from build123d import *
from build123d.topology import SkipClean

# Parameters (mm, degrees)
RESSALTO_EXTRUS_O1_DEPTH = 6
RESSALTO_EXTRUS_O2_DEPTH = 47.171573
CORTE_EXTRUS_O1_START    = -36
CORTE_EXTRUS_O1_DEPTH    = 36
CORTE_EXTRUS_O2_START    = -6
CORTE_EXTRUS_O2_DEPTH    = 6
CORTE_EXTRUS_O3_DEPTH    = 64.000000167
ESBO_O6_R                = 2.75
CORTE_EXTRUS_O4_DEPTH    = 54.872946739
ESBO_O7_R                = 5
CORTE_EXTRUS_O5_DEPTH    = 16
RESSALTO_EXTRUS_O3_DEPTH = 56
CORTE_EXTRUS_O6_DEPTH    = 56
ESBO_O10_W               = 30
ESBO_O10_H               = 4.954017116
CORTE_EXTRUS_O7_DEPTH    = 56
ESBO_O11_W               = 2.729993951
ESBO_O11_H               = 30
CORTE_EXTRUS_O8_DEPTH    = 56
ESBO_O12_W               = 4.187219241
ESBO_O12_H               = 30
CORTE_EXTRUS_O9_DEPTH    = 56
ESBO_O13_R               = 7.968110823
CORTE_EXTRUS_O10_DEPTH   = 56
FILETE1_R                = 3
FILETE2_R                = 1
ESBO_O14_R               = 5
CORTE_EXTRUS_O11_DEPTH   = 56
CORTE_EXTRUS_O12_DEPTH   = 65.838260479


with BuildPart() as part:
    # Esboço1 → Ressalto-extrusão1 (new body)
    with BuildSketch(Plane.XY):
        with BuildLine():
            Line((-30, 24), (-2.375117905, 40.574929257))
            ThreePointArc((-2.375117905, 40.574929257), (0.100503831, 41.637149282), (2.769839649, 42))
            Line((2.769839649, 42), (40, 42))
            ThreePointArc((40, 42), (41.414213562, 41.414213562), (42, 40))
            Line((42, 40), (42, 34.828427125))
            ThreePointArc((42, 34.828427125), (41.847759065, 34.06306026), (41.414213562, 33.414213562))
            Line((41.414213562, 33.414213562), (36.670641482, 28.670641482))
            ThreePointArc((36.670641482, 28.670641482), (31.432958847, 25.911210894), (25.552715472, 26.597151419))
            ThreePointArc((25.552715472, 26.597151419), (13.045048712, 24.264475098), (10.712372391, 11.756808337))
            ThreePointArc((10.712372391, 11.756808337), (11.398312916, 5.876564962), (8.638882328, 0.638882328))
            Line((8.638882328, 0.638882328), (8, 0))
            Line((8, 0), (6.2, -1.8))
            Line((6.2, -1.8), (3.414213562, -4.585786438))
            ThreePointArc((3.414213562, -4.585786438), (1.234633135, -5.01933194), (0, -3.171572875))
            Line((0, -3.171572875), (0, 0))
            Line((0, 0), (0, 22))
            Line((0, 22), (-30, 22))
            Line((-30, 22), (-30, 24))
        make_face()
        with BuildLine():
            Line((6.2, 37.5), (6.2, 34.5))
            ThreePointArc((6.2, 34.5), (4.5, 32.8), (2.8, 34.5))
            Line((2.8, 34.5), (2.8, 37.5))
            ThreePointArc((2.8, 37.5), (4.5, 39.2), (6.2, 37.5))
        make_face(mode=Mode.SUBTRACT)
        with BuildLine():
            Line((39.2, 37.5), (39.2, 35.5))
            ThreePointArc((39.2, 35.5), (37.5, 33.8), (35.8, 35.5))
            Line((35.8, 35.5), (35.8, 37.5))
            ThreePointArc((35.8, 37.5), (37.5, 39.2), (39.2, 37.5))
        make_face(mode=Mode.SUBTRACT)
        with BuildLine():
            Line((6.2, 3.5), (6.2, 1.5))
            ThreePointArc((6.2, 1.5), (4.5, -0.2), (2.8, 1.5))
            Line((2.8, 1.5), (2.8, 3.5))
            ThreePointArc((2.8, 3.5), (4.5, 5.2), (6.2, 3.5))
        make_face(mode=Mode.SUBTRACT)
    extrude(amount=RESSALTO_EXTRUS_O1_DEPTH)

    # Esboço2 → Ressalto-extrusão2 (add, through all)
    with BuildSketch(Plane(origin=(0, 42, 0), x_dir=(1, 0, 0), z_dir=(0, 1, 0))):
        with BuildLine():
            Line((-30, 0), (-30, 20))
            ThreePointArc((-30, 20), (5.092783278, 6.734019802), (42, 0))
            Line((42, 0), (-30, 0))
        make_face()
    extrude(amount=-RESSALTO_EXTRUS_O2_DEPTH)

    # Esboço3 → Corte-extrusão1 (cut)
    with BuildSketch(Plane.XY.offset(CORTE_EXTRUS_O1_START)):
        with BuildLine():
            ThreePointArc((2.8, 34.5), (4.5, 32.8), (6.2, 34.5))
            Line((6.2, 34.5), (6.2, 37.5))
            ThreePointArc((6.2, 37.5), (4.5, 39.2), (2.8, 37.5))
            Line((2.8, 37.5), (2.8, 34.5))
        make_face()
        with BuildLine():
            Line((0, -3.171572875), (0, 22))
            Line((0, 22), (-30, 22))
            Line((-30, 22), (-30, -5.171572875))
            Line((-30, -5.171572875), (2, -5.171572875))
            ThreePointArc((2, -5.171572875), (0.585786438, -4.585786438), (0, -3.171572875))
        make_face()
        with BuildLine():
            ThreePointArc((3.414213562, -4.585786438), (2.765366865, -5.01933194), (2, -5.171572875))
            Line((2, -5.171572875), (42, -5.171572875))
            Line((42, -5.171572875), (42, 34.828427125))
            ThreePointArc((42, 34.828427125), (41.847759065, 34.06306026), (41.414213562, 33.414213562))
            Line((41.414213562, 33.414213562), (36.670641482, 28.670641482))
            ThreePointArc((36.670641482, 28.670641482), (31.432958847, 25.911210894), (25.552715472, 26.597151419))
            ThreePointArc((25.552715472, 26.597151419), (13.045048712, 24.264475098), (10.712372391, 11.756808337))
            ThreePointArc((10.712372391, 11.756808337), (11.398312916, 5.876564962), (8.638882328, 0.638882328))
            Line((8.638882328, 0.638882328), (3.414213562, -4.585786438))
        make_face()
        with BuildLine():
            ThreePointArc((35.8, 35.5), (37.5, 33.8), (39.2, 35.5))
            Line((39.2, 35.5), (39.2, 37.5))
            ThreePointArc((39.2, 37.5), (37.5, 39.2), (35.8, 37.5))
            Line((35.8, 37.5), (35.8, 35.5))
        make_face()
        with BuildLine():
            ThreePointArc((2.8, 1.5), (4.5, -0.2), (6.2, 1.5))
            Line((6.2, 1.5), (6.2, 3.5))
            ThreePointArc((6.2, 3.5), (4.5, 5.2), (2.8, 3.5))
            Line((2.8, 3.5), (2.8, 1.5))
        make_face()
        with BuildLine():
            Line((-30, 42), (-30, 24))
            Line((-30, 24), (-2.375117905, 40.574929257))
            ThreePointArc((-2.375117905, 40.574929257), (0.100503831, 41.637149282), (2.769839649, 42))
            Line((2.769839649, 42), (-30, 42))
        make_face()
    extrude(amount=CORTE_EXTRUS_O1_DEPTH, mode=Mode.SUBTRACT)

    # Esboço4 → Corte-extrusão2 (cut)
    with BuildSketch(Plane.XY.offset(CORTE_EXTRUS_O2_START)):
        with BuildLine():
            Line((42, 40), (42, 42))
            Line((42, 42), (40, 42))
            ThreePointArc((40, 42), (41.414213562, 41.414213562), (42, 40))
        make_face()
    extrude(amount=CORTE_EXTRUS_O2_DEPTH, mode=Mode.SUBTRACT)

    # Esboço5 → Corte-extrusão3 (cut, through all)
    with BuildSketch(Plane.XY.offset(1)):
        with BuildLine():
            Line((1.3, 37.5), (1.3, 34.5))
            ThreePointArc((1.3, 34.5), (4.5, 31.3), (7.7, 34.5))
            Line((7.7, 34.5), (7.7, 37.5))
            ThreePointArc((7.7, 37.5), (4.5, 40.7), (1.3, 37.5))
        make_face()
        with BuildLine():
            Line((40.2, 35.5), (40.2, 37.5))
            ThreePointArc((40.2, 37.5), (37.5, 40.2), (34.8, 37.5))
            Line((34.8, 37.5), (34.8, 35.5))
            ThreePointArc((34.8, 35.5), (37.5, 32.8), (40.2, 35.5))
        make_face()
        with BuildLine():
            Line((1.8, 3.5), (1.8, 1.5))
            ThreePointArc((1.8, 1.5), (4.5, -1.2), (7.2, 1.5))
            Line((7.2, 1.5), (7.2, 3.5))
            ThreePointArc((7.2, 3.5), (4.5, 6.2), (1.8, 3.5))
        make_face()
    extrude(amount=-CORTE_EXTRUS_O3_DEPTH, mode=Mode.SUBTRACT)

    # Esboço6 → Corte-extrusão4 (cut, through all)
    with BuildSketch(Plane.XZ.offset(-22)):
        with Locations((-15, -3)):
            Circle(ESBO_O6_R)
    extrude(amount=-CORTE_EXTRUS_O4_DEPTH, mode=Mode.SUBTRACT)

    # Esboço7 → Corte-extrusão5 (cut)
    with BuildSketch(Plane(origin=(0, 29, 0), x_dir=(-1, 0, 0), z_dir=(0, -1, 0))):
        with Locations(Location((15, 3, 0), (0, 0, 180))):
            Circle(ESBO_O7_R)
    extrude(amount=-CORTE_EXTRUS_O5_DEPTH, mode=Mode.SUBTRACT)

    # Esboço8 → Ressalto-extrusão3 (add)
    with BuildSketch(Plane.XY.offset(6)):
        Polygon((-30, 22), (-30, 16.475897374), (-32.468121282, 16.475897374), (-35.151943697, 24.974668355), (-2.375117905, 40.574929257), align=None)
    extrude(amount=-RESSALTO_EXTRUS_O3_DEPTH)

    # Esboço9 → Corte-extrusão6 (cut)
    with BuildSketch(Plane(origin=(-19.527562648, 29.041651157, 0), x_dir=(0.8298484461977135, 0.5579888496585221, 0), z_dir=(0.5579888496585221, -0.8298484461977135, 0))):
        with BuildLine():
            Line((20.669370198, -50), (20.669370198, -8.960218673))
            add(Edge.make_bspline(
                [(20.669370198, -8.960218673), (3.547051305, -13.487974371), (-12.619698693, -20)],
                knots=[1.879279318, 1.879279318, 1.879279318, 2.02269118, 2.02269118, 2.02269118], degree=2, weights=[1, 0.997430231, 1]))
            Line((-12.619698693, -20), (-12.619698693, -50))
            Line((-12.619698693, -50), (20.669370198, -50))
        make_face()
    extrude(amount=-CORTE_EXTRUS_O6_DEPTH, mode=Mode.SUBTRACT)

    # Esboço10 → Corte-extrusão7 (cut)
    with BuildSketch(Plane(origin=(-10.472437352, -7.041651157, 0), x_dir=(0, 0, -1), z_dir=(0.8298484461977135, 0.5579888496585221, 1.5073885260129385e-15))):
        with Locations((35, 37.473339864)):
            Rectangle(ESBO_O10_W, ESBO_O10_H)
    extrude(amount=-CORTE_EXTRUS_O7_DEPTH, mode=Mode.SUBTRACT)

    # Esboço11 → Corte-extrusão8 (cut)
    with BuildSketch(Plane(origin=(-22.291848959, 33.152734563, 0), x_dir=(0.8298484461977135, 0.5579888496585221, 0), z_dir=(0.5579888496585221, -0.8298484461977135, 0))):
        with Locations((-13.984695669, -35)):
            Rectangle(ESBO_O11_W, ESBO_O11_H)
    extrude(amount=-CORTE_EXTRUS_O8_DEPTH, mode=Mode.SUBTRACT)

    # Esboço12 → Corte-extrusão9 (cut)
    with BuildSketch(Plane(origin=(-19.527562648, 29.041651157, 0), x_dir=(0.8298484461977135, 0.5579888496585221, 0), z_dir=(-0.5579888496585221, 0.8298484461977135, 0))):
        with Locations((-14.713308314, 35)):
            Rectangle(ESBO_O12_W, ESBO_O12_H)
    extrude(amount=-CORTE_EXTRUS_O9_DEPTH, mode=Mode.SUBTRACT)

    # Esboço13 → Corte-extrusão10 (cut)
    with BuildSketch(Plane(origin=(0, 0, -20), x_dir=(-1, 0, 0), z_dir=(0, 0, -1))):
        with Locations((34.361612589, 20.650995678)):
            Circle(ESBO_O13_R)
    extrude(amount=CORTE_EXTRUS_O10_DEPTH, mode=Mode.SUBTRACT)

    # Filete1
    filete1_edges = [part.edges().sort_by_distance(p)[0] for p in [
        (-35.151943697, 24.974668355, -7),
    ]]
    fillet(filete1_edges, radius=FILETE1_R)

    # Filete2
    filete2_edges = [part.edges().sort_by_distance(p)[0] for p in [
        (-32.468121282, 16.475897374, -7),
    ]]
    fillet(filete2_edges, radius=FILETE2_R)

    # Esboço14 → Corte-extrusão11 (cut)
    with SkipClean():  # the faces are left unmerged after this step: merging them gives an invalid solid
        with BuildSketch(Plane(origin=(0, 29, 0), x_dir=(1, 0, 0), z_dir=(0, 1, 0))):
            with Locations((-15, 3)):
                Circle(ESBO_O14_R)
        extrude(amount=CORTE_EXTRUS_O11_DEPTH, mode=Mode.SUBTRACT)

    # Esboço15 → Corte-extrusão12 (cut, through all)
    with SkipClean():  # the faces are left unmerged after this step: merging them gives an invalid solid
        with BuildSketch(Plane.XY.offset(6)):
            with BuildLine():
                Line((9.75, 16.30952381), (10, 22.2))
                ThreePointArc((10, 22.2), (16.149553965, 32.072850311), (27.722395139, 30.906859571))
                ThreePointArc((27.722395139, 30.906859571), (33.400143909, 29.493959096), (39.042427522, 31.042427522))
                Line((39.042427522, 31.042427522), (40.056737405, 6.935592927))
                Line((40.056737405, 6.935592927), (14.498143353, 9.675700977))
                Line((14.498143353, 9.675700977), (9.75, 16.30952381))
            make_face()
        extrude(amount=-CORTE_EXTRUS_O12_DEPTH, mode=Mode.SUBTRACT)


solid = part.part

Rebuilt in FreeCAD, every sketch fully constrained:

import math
import FreeCAD as App
import Part
import Sketcher
Q = App.Units.Quantity


def edges_at(feature, points):
    """Names of the edges that pass closest to the given points."""
    edges = feature.Shape.Edges
    near = lambda p: min(range(len(edges)), key=lambda i: edges[i].distToShape(Part.Vertex(*p))[0])
    return sorted({f"Edge{near(p) + 1}" for p in points})

doc = App.newDocument("Part")
body = doc.addObject("PartDesign::Body", "Body")

# Sketch on XY plane
sketch1 = body.newObject("Sketcher::SketchObject", "Sketch")
sketch1.AttachmentSupport = (doc.getObject("XY_Plane"), [""])
sketch1.MapMode = "FlatFace"
sketch1.addGeometry([
    Part.LineSegment(App.Vector(-2.4, 40.6, 0), App.Vector(-30, 24, 0)),  # 0
    Part.LineSegment(App.Vector(-30, 24, 0), App.Vector(-30, 22, 0)),  # 1
    Part.LineSegment(App.Vector(-30, 22, 0), App.Vector(0, 22, 0)),  # 2
    Part.LineSegment(App.Vector(0, 22, 0), App.Vector(0, -3.2, 0)),  # 3
    Part.ArcOfCircle(Part.Circle(App.Vector(2, -3.2, 0), App.Vector(0, 0, 1), 2), math.radians(180), math.radians(315)),  # 4
    Part.LineSegment(App.Vector(3.4, -4.6, 0), App.Vector(8.6, 0.6, 0)),  # 5
    Part.ArcOfCircle(Part.Circle(App.Vector(1.6, 7.7, 0), App.Vector(0, 0, 1), 10), math.radians(-45), math.radians(24)),  # 6
    Part.ArcOfCircle(Part.Circle(App.Vector(21, 16.3, 0), App.Vector(0, 0, 1), 11.2), math.radians(66), math.radians(204)),  # 7
    Part.ArcOfCircle(Part.Circle(App.Vector(29.6, 35.7, 0), App.Vector(0, 0, 1), 10), math.radians(-114), math.radians(-45)),  # 8
    Part.LineSegment(App.Vector(36.7, 28.7, 0), App.Vector(41.4, 33.4, 0)),  # 9
    Part.ArcOfCircle(Part.Circle(App.Vector(40, 34.8, 0), App.Vector(0, 0, 1), 2), math.radians(-45), math.radians(0)),  # 10
    Part.LineSegment(App.Vector(42, 34.8, 0), App.Vector(42, 40, 0)),  # 11
    Part.ArcOfCircle(Part.Circle(App.Vector(40, 40, 0), App.Vector(0, 0, 1), 2), math.radians(0), math.radians(90)),  # 12
    Part.LineSegment(App.Vector(40, 42, 0), App.Vector(2.8, 42, 0)),  # 13
    Part.ArcOfCircle(Part.Circle(App.Vector(2.8, 32, 0), App.Vector(0, 0, 1), 10), math.radians(90), math.radians(121)),  # 14
    Part.LineSegment(App.Vector(6.2, 3.5, 0), App.Vector(6.2, 1.5, 0)),  # 15
    Part.ArcOfCircle(Part.Circle(App.Vector(4.5, 1.5, 0), App.Vector(0, 0, 1), 1.7), math.radians(180), math.radians(360)),  # 16
    Part.LineSegment(App.Vector(2.8, 1.5, 0), App.Vector(2.8, 3.5, 0)),  # 17
    Part.ArcOfCircle(Part.Circle(App.Vector(4.5, 3.5, 0), App.Vector(0, 0, 1), 1.7), math.radians(0), math.radians(180)),  # 18
    Part.LineSegment(App.Vector(39.2, 37.5, 0), App.Vector(39.2, 35.5, 0)),  # 19
    Part.ArcOfCircle(Part.Circle(App.Vector(37.5, 35.5, 0), App.Vector(0, 0, 1), 1.7), math.radians(180), math.radians(360)),  # 20
    Part.LineSegment(App.Vector(35.8, 35.5, 0), App.Vector(35.8, 37.5, 0)),  # 21
    Part.ArcOfCircle(Part.Circle(App.Vector(37.5, 37.5, 0), App.Vector(0, 0, 1), 1.7), math.radians(0), math.radians(180)),  # 22
    Part.LineSegment(App.Vector(6.2, 37.5, 0), App.Vector(6.2, 34.5, 0)),  # 23
    Part.ArcOfCircle(Part.Circle(App.Vector(4.5, 34.5, 0), App.Vector(0, 0, 1), 1.7), math.radians(180), math.radians(360)),  # 24
    Part.LineSegment(App.Vector(2.8, 34.5, 0), App.Vector(2.8, 37.5, 0)),  # 25
    Part.ArcOfCircle(Part.Circle(App.Vector(4.5, 37.5, 0), App.Vector(0, 0, 1), 1.7), math.radians(0), math.radians(180)),  # 26
], False)
sketch1.addConstraint([
    Sketcher.Constraint("Coincident", 0, 2, 1, 1),
    Sketcher.Constraint("Coincident", 1, 2, 2, 1),
    Sketcher.Constraint("Coincident", 2, 2, 3, 1),
    Sketcher.Constraint("Tangent", 3, 2, 4, 1),
    Sketcher.Constraint("Tangent", 4, 2, 5, 1),
    Sketcher.Constraint("Tangent", 5, 2, 6, 1),
    Sketcher.Constraint("Tangent", 6, 2, 7, 2),
    Sketcher.Constraint("Tangent", 7, 1, 8, 1),
    Sketcher.Constraint("Tangent", 8, 2, 9, 1),
    Sketcher.Constraint("Tangent", 9, 2, 10, 1),
    Sketcher.Constraint("Tangent", 10, 2, 11, 1),
    Sketcher.Constraint("Tangent", 11, 2, 12, 1),
    Sketcher.Constraint("Tangent", 12, 2, 13, 1),
    Sketcher.Constraint("Tangent", 13, 2, 14, 1),
    Sketcher.Constraint("Tangent", 14, 2, 0, 1),
    Sketcher.Constraint("Tangent", 15, 2, 16, 2),
    Sketcher.Constraint("Tangent", 16, 1, 17, 1),
    Sketcher.Constraint("Tangent", 17, 2, 18, 2),
    Sketcher.Constraint("Tangent", 18, 1, 15, 1),
    Sketcher.Constraint("Tangent", 19, 2, 20, 2),
    Sketcher.Constraint("Tangent", 20, 1, 21, 1),
    Sketcher.Constraint("Tangent", 21, 2, 22, 2),
    Sketcher.Constraint("Tangent", 22, 1, 19, 1),
    Sketcher.Constraint("Tangent", 23, 2, 24, 2),
    Sketcher.Constraint("Tangent", 24, 1, 25, 1),
    Sketcher.Constraint("Tangent", 25, 2, 26, 2),
    Sketcher.Constraint("Tangent", 26, 1, 23, 1),
    Sketcher.Constraint("Vertical", 1),
    Sketcher.Constraint("Horizontal", 2),
    Sketcher.Constraint("Vertical", 3),
    Sketcher.Constraint("Vertical", 11),
    Sketcher.Constraint("Horizontal", 13),
    Sketcher.Constraint("Vertical", 15),
    Sketcher.Constraint("Vertical", 17),
    Sketcher.Constraint("Vertical", 19),
    Sketcher.Constraint("Vertical", 21),
    Sketcher.Constraint("Vertical", 23),
    Sketcher.Constraint("Vertical", 25),
    Sketcher.Constraint("Equal", 6, 8),
    Sketcher.Constraint("Equal", 4, 10),
    Sketcher.Constraint("Equal", 10, 12),
    Sketcher.Constraint("Equal", 8, 14),
    Sketcher.Constraint("Equal", 18, 20),
    Sketcher.Constraint("Equal", 22, 24),
    Sketcher.Constraint("PointOnObject", 2, 2, -2),
    Sketcher.Constraint("Parallel", 5, 9),
    Sketcher.Constraint("Horizontal", 22, 3, 26, 3),
    Sketcher.Constraint("Vertical", 18, 3, 24, 3),
    Sketcher.Constraint("Equal", 1, 15),
    Sketcher.Constraint("Equal", 17, 19),
    Sketcher.Constraint("Radius", 4, Q("2 mm")),
    Sketcher.Constraint("Radius", 6, Q("10 mm")),
    Sketcher.Constraint("Radius", 16, Q("1.7 mm")),
    Sketcher.Constraint("DistanceX", 2, 1, 2, 2, Q("30 mm")),
    Sketcher.Constraint("DistanceY", 1, 2, 1, 1, Q("2 mm")),
    Sketcher.Constraint("DistanceY", 23, 2, 23, 1, Q("3 mm")),
    Sketcher.Constraint("Angle", 5, Q("45 deg")),
    Sketcher.Constraint("Radius", 7, Q("11.25 mm")),
    Sketcher.Constraint("DistanceX", -1, 1, 7, 3, Q("21 mm")),
    Sketcher.Constraint("DistanceX", -1, 1, 10, 3, Q("40 mm")),
    Sketcher.Constraint("DistanceY", -1, 1, 12, 3, Q("40 mm")),
    Sketcher.Constraint("DistanceY", -1, 1, 0, 2, Q("24 mm")),
    Sketcher.Constraint("DistanceY", 4, 3, 10, 3, Q("38 mm")),
    Sketcher.Constraint("DistanceY", 18, 3, 24, 3, Q("31 mm")),
    Sketcher.Constraint("DistanceX", -1, 1, 16, 3, Q("4.5 mm")),
    Sketcher.Constraint("DistanceY", -1, 1, 16, 3, Q("1.5 mm")),
    Sketcher.Constraint("DistanceX", -1, 1, 20, 3, Q("37.5 mm")),
    Sketcher.Constraint("DistanceX", 13, 2, 13, 1, Q("37.23016 mm")),
    Sketcher.Constraint("DistanceX", 6, 3, 4, 2, Q("1.846399 mm")),
    Sketcher.Constraint("DistanceY", 3, 2, 3, 1, Q("25.171573 mm")),
])
pad1 = body.newObject("PartDesign::Pad", "Pad")
pad1.Profile = sketch1
pad1.Length = 6

# Sketch on XZ plane
sketch2 = body.newObject("Sketcher::SketchObject", "Sketch001")
sketch2.AttachmentSupport = (doc.getObject("XZ_Plane"), [""])
sketch2.MapMode = "FlatFace"
sketch2.AttachmentOffset = App.Placement(App.Vector(0, 0, -42), App.Rotation())
sketch2.addGeometry([
    Part.LineSegment(App.Vector(-30, -20, 0), App.Vector(-30, 0, 0)),
    Part.LineSegment(App.Vector(-30, 0, 0), App.Vector(42, 0, 0)),
    Part.ArcOfCircle(Part.Circle(App.Vector(61, -207, 0), App.Vector(0, 0, 1), 208), math.radians(95), math.radians(116)),
], False)
sketch2.addConstraint([
    Sketcher.Constraint("Coincident", 0, 2, 1, 1),
    Sketcher.Constraint("Coincident", 1, 2, 2, 1),
    Sketcher.Constraint("Coincident", 2, 2, 0, 1),
    Sketcher.Constraint("Vertical", 0),
    Sketcher.Constraint("Horizontal", 1),
    Sketcher.Constraint("PointOnObject", 0, 2, -1),
    Sketcher.Constraint("DistanceX", 1, 1, 1, 2, Q("72 mm")),
    Sketcher.Constraint("DistanceY", 0, 1, 0, 2, Q("20 mm")),
    Sketcher.Constraint("DistanceX", 0, 2, -1, 1, Q("30 mm")),
    Sketcher.Constraint("Radius", 2, Q("207.616308 mm")),
])
pad2 = body.newObject("PartDesign::Pad", "Pad001")
pad2.Profile = sketch2
pad2.Length = 47.171573

# Sketch on XY plane
sketch3 = body.newObject("Sketcher::SketchObject", "Sketch002")
sketch3.AttachmentSupport = (doc.getObject("XY_Plane"), [""])
sketch3.MapMode = "FlatFace"
sketch3.AttachmentOffset = App.Placement(App.Vector(0, 0, -36), App.Rotation())
sketch3.addGeometry([
    Part.ArcOfCircle(Part.Circle(App.Vector(4.5, 34.5, 0), App.Vector(0, 0, 1), 1.7), math.radians(180), math.radians(360)),  # 0
    Part.LineSegment(App.Vector(6.2, 34.5, 0), App.Vector(6.2, 37.5, 0)),  # 1
    Part.ArcOfCircle(Part.Circle(App.Vector(4.5, 37.5, 0), App.Vector(0, 0, 1), 1.7), math.radians(0), math.radians(180)),  # 2
    Part.LineSegment(App.Vector(2.8, 37.5, 0), App.Vector(2.8, 34.5, 0)),  # 3
    Part.LineSegment(App.Vector(0, -3.2, 0), App.Vector(0, 22, 0)),  # 4
    Part.LineSegment(App.Vector(0, 22, 0), App.Vector(-30, 22, 0)),  # 5
    Part.LineSegment(App.Vector(-30, 22, 0), App.Vector(-30, -5.2, 0)),  # 6
    Part.LineSegment(App.Vector(-30, -5.2, 0), App.Vector(2, -5.2, 0)),  # 7
    Part.ArcOfCircle(Part.Circle(App.Vector(2, -3.2, 0), App.Vector(0, 0, 1), 2), math.radians(180), math.radians(270)),  # 8
    Part.ArcOfCircle(Part.Circle(App.Vector(2, -3.2, 0), App.Vector(0, 0, 1), 2), math.radians(-90), math.radians(-45)),  # 9
    Part.LineSegment(App.Vector(2, -5.2, 0), App.Vector(42, -5.2, 0)),  # 10
    Part.LineSegment(App.Vector(42, -5.2, 0), App.Vector(42, 34.8, 0)),  # 11
    Part.ArcOfCircle(Part.Circle(App.Vector(40, 34.8, 0), App.Vector(0, 0, 1), 2), math.radians(-45), math.radians(0)),  # 12
    Part.LineSegment(App.Vector(41.4, 33.4, 0), App.Vector(36.7, 28.7, 0)),  # 13
    Part.ArcOfCircle(Part.Circle(App.Vector(29.6, 35.7, 0), App.Vector(0, 0, 1), 10), math.radians(-114), math.radians(-45)),  # 14
    Part.ArcOfCircle(Part.Circle(App.Vector(21, 16.3, 0), App.Vector(0, 0, 1), 11.2), math.radians(66), math.radians(204)),  # 15
    Part.ArcOfCircle(Part.Circle(App.Vector(1.6, 7.7, 0), App.Vector(0, 0, 1), 10), math.radians(-45), math.radians(24)),  # 16
    Part.LineSegment(App.Vector(8.6, 0.6, 0), App.Vector(3.4, -4.6, 0)),  # 17
    Part.ArcOfCircle(Part.Circle(App.Vector(37.5, 35.5, 0), App.Vector(0, 0, 1), 1.7), math.radians(180), math.radians(360)),  # 18
    Part.LineSegment(App.Vector(39.2, 35.5, 0), App.Vector(39.2, 37.5, 0)),  # 19
    Part.ArcOfCircle(Part.Circle(App.Vector(37.5, 37.5, 0), App.Vector(0, 0, 1), 1.7), math.radians(0), math.radians(180)),  # 20
    Part.LineSegment(App.Vector(35.8, 37.5, 0), App.Vector(35.8, 35.5, 0)),  # 21
    Part.ArcOfCircle(Part.Circle(App.Vector(4.5, 1.5, 0), App.Vector(0, 0, 1), 1.7), math.radians(180), math.radians(360)),  # 22
    Part.LineSegment(App.Vector(6.2, 1.5, 0), App.Vector(6.2, 3.5, 0)),  # 23
    Part.ArcOfCircle(Part.Circle(App.Vector(4.5, 3.5, 0), App.Vector(0, 0, 1), 1.7), math.radians(0), math.radians(180)),  # 24
    Part.LineSegment(App.Vector(2.8, 3.5, 0), App.Vector(2.8, 1.5, 0)),  # 25
    Part.LineSegment(App.Vector(-30, 42, 0), App.Vector(-30, 24, 0)),  # 26
    Part.LineSegment(App.Vector(-30, 24, 0), App.Vector(-2.4, 40.6, 0)),  # 27
    Part.ArcOfCircle(Part.Circle(App.Vector(2.8, 32, 0), App.Vector(0, 0, 1), 10), math.radians(90), math.radians(121)),  # 28
    Part.LineSegment(App.Vector(2.8, 42, 0), App.Vector(-30, 42, 0)),  # 29
], False)
sketch3.addConstraint([
    Sketcher.Constraint("Tangent", 0, 2, 1, 1),
    Sketcher.Constraint("Tangent", 1, 2, 2, 1),
    Sketcher.Constraint("Tangent", 2, 2, 3, 1),
    Sketcher.Constraint("Tangent", 3, 2, 0, 1),
    Sketcher.Constraint("Coincident", 4, 2, 5, 1),
    Sketcher.Constraint("Coincident", 5, 2, 6, 1),
    Sketcher.Constraint("Coincident", 6, 2, 7, 1),
    Sketcher.Constraint("Tangent", 7, 2, 8, 2),
    Sketcher.Constraint("Tangent", 8, 1, 4, 1),
    Sketcher.Constraint("Tangent", 9, 1, 10, 1),
    Sketcher.Constraint("Coincident", 10, 2, 11, 1),
    Sketcher.Constraint("Tangent", 11, 2, 12, 2),
    Sketcher.Constraint("Tangent", 12, 1, 13, 1),
    Sketcher.Constraint("Tangent", 13, 2, 14, 2),
    Sketcher.Constraint("Tangent", 14, 1, 15, 1),
    Sketcher.Constraint("Tangent", 15, 2, 16, 2),
    Sketcher.Constraint("Tangent", 16, 1, 17, 1),
    Sketcher.Constraint("Tangent", 17, 2, 9, 2),
    Sketcher.Constraint("Tangent", 18, 2, 19, 1),
    Sketcher.Constraint("Tangent", 19, 2, 20, 1),
    Sketcher.Constraint("Tangent", 20, 2, 21, 1),
    Sketcher.Constraint("Tangent", 21, 2, 18, 1),
    Sketcher.Constraint("Tangent", 22, 2, 23, 1),
    Sketcher.Constraint("Tangent", 23, 2, 24, 1),
    Sketcher.Constraint("Tangent", 24, 2, 25, 1),
    Sketcher.Constraint("Tangent", 25, 2, 22, 1),
    Sketcher.Constraint("Coincident", 26, 2, 27, 1),
    Sketcher.Constraint("Tangent", 27, 2, 28, 2),
    Sketcher.Constraint("Tangent", 28, 1, 29, 1),
    Sketcher.Constraint("Coincident", 29, 2, 26, 1),
    Sketcher.Constraint("Vertical", 1),
    Sketcher.Constraint("Vertical", 3),
    Sketcher.Constraint("Vertical", 4),
    Sketcher.Constraint("Horizontal", 5),
    Sketcher.Constraint("Vertical", 6),
    Sketcher.Constraint("Horizontal", 7),
    Sketcher.Constraint("Horizontal", 10),
    Sketcher.Constraint("Vertical", 11),
    Sketcher.Constraint("Vertical", 19),
    Sketcher.Constraint("Vertical", 21),
    Sketcher.Constraint("Vertical", 23),
    Sketcher.Constraint("Vertical", 25),
    Sketcher.Constraint("Vertical", 26),
    Sketcher.Constraint("Horizontal", 29),
    Sketcher.Constraint("Coincident", 9, 3, 8, 3),
    Sketcher.Constraint("Equal", 8, 9),
    Sketcher.Constraint("Equal", 9, 12),
    Sketcher.Constraint("Equal", 14, 16),
    Sketcher.Constraint("Equal", 2, 18),
    Sketcher.Constraint("Equal", 20, 22),
    Sketcher.Constraint("Equal", 16, 28),
    Sketcher.Constraint("PointOnObject", 4, 2, -2),
    Sketcher.Constraint("Parallel", 13, 17),
    Sketcher.Constraint("Horizontal", 2, 3, 20, 3),
    Sketcher.Constraint("Vertical", 2, 3, 22, 3),
    Sketcher.Constraint("Vertical", 6, 2, 26, 2),
    Sketcher.Constraint("Equal", 10, 11),
    Sketcher.Constraint("Equal", 21, 23),
    Sketcher.Constraint("Radius", 8, Q("2 mm")),
    Sketcher.Constraint("Radius", 14, Q("10 mm")),
    Sketcher.Constraint("Radius", 0, Q("1.7 mm")),
    Sketcher.Constraint("DistanceX", 5, 2, 5, 1, Q("30 mm")),
    Sketcher.Constraint("DistanceX", 10, 1, 10, 2, Q("40 mm")),
    Sketcher.Constraint("DistanceY", 1, 1, 1, 2, Q("3 mm")),
    Sketcher.Constraint("DistanceY", 19, 1, 19, 2, Q("2 mm")),
    Sketcher.Constraint("DistanceY", 26, 2, 26, 1, Q("18 mm")),
    Sketcher.Constraint("Angle", 13, Q("-135 deg")),
    Sketcher.Constraint("Radius", 15, Q("11.25 mm")),
    Sketcher.Constraint("DistanceX", -1, 1, 15, 3, Q("21 mm")),
    Sketcher.Constraint("DistanceY", -1, 1, 28, 3, Q("32 mm")),
    Sketcher.Constraint("DistanceY", -1, 1, 4, 2, Q("22 mm")),
    Sketcher.Constraint("DistanceX", 0, 3, 18, 3, Q("33 mm")),
    Sketcher.Constraint("DistanceY", 22, 3, 0, 3, Q("33 mm")),
    Sketcher.Constraint("DistanceX", -1, 1, 0, 3, Q("4.5 mm")),
    Sketcher.Constraint("DistanceY", -1, 1, 0, 3, Q("34.5 mm")),
    Sketcher.Constraint("DistanceX", 29, 2, 29, 1, Q("32.76984 mm")),
    Sketcher.Constraint("DistanceY", 4, 1, 4, 2, Q("25.171573 mm")),
    Sketcher.Constraint("DistanceY", -1, 1, 14, 3, Q("35.741709 mm")),
])
pocket1 = body.newObject("PartDesign::Pocket", "Pocket")
pocket1.Profile = sketch3
pocket1.Length = 36
pocket1.Reversed = True

# Sketch on XY plane
sketch4 = body.newObject("Sketcher::SketchObject", "Sketch003")
sketch4.AttachmentSupport = (doc.getObject("XY_Plane"), [""])
sketch4.MapMode = "FlatFace"
sketch4.AttachmentOffset = App.Placement(App.Vector(0, 0, -6), App.Rotation())
sketch4.addGeometry([
    Part.LineSegment(App.Vector(42, 40, 0), App.Vector(42, 42, 0)),
    Part.LineSegment(App.Vector(42, 42, 0), App.Vector(40, 42, 0)),
    Part.ArcOfCircle(Part.Circle(App.Vector(40, 40, 0), App.Vector(0, 0, 1), 2), math.radians(0), math.radians(90)),
], False)
sketch4.addConstraint([
    Sketcher.Constraint("Coincident", 0, 2, 1, 1),
    Sketcher.Constraint("Tangent", 1, 2, 2, 2),
    Sketcher.Constraint("Tangent", 2, 1, 0, 1),
    Sketcher.Constraint("Vertical", 0),
    Sketcher.Constraint("Horizontal", 1),
    Sketcher.Constraint("Radius", 2, Q("2 mm")),
    Sketcher.Constraint("DistanceX", -1, 1, 2, 3, Q("40 mm")),
    Sketcher.Constraint("DistanceY", -1, 1, 2, 3, Q("40 mm")),
])
pocket2 = body.newObject("PartDesign::Pocket", "Pocket001")
pocket2.Profile = sketch4
pocket2.Length = 6
pocket2.Reversed = True

# Sketch on XY plane
sketch5 = body.newObject("Sketcher::SketchObject", "Sketch004")
sketch5.AttachmentSupport = (doc.getObject("XY_Plane"), [""])
sketch5.MapMode = "FlatFace"
sketch5.AttachmentOffset = App.Placement(App.Vector(0, 0, 1), App.Rotation())
sketch5.addGeometry([
    Part.LineSegment(App.Vector(1.3, 37.5, 0), App.Vector(1.3, 34.5, 0)),  # 0
    Part.ArcOfCircle(Part.Circle(App.Vector(4.5, 34.5, 0), App.Vector(0, 0, 1), 3.2), math.radians(180), math.radians(360)),  # 1
    Part.LineSegment(App.Vector(7.7, 34.5, 0), App.Vector(7.7, 37.5, 0)),  # 2
    Part.ArcOfCircle(Part.Circle(App.Vector(4.5, 37.5, 0), App.Vector(0, 0, 1), 3.2), math.radians(0), math.radians(180)),  # 3
    Part.LineSegment(App.Vector(40.2, 35.5, 0), App.Vector(40.2, 37.5, 0)),  # 4
    Part.ArcOfCircle(Part.Circle(App.Vector(37.5, 37.5, 0), App.Vector(0, 0, 1), 2.7), math.radians(0), math.radians(180)),  # 5
    Part.LineSegment(App.Vector(34.8, 37.5, 0), App.Vector(34.8, 35.5, 0)),  # 6
    Part.ArcOfCircle(Part.Circle(App.Vector(37.5, 35.5, 0), App.Vector(0, 0, 1), 2.7), math.radians(180), math.radians(360)),  # 7
    Part.LineSegment(App.Vector(1.8, 3.5, 0), App.Vector(1.8, 1.5, 0)),  # 8
    Part.ArcOfCircle(Part.Circle(App.Vector(4.5, 1.5, 0), App.Vector(0, 0, 1), 2.7), math.radians(180), math.radians(360)),  # 9
    Part.LineSegment(App.Vector(7.2, 1.5, 0), App.Vector(7.2, 3.5, 0)),  # 10
    Part.ArcOfCircle(Part.Circle(App.Vector(4.5, 3.5, 0), App.Vector(0, 0, 1), 2.7), math.radians(0), math.radians(180)),  # 11
], False)
sketch5.addConstraint([
    Sketcher.Constraint("Tangent", 0, 2, 1, 1),
    Sketcher.Constraint("Tangent", 1, 2, 2, 1),
    Sketcher.Constraint("Tangent", 2, 2, 3, 1),
    Sketcher.Constraint("Tangent", 3, 2, 0, 1),
    Sketcher.Constraint("Tangent", 4, 2, 5, 1),
    Sketcher.Constraint("Tangent", 5, 2, 6, 1),
    Sketcher.Constraint("Tangent", 6, 2, 7, 1),
    Sketcher.Constraint("Tangent", 7, 2, 4, 1),
    Sketcher.Constraint("Tangent", 8, 2, 9, 1),
    Sketcher.Constraint("Tangent", 9, 2, 10, 1),
    Sketcher.Constraint("Tangent", 10, 2, 11, 1),
    Sketcher.Constraint("Tangent", 11, 2, 8, 1),
    Sketcher.Constraint("Vertical", 0),
    Sketcher.Constraint("Vertical", 2),
    Sketcher.Constraint("Vertical", 4),
    Sketcher.Constraint("Vertical", 6),
    Sketcher.Constraint("Vertical", 8),
    Sketcher.Constraint("Vertical", 10),
    Sketcher.Constraint("Equal", 7, 9),
    Sketcher.Constraint("Horizontal", 3, 3, 5, 3),
    Sketcher.Constraint("Vertical", 3, 3, 9, 3),
    Sketcher.Constraint("Equal", 6, 8),
    Sketcher.Constraint("Radius", 1, Q("3.2 mm")),
    Sketcher.Constraint("Radius", 5, Q("2.7 mm")),
    Sketcher.Constraint("DistanceY", 0, 2, 0, 1, Q("3 mm")),
    Sketcher.Constraint("DistanceY", 4, 1, 4, 2, Q("2 mm")),
    Sketcher.Constraint("DistanceX", 3, 3, 5, 3, Q("33 mm")),
    Sketcher.Constraint("DistanceY", 9, 3, 1, 3, Q("33 mm")),
    Sketcher.Constraint("DistanceX", -1, 1, 1, 3, Q("4.5 mm")),
    Sketcher.Constraint("DistanceY", -1, 1, 1, 3, Q("34.5 mm")),
])
pocket3 = body.newObject("PartDesign::Pocket", "Pocket002")
pocket3.Profile = sketch5
pocket3.Type = "ThroughAll"

# Sketch on XZ plane
sketch6 = body.newObject("Sketcher::SketchObject", "Sketch005")
sketch6.AttachmentSupport = (doc.getObject("XZ_Plane"), [""])
sketch6.MapMode = "FlatFace"
sketch6.AttachmentOffset = App.Placement(App.Vector(0, 0, -22), App.Rotation())
sketch6.addGeometry(Part.Circle(App.Vector(-15, -3, 0), App.Vector(0, 0, 1), 2.8), False)
sketch6.addConstraint([
    Sketcher.Constraint("Diameter", 0, Q("5.5 mm")),
    Sketcher.Constraint("DistanceX", 0, 3, -1, 1, Q("15 mm")),
    Sketcher.Constraint("DistanceY", 0, 3, -1, 1, Q("3 mm")),
])
pocket4 = body.newObject("PartDesign::Pocket", "Pocket003")
pocket4.Profile = sketch6
pocket4.Type = "ThroughAll"

# Sketch on XZ plane
sketch7 = body.newObject("Sketcher::SketchObject", "Sketch006")
sketch7.AttachmentSupport = (doc.getObject("XZ_Plane"), [""])
sketch7.MapMode = "FlatFace"
sketch7.AttachmentOffset = App.Placement(App.Vector(0, 0, -29), App.Rotation())
sketch7.addGeometry(Part.Circle(App.Vector(-15, -3, 0), App.Vector(0, 0, 1), 5), False)
sketch7.addConstraint([
    Sketcher.Constraint("Diameter", 0, Q("10 mm")),
    Sketcher.Constraint("DistanceX", 0, 3, -1, 1, Q("15 mm")),
    Sketcher.Constraint("DistanceY", 0, 3, -1, 1, Q("3 mm")),
])
pocket5 = body.newObject("PartDesign::Pocket", "Pocket004")
pocket5.Profile = sketch7
pocket5.Length = 16

# Sketch on XY plane
sketch8 = body.newObject("Sketcher::SketchObject", "Sketch007")
sketch8.AttachmentSupport = (doc.getObject("XY_Plane"), [""])
sketch8.MapMode = "FlatFace"
sketch8.AttachmentOffset = App.Placement(App.Vector(0, 0, 6), App.Rotation())
sketch8.addGeometry([
    Part.LineSegment(App.Vector(-30, 16.5, 0), App.Vector(-30, 22, 0)),  # 0
    Part.LineSegment(App.Vector(-30, 22, 0), App.Vector(-2.4, 40.6, 0)),  # 1
    Part.LineSegment(App.Vector(-2.4, 40.6, 0), App.Vector(-35.2, 25, 0)),  # 2
    Part.LineSegment(App.Vector(-35.2, 25, 0), App.Vector(-32.5, 16.5, 0)),  # 3
    Part.LineSegment(App.Vector(-32.5, 16.5, 0), App.Vector(-30, 16.5, 0)),  # 4
], False)
sketch8.addConstraint([
    Sketcher.Constraint("Coincident", 0, 2, 1, 1),
    Sketcher.Constraint("Coincident", 1, 2, 2, 1),
    Sketcher.Constraint("Coincident", 2, 2, 3, 1),
    Sketcher.Constraint("Coincident", 3, 2, 4, 1),
    Sketcher.Constraint("Coincident", 4, 2, 0, 1),
    Sketcher.Constraint("Vertical", 0),
    Sketcher.Constraint("Horizontal", 4),
    Sketcher.Constraint("DistanceX", 0, 2, -1, 1, Q("30 mm")),
    Sketcher.Constraint("DistanceY", -1, 1, 0, 2, Q("22 mm")),
    Sketcher.Constraint("DistanceX", 4, 1, 4, 2, Q("2.468121 mm")),
    Sketcher.Constraint("Distance", 1, Q("33.289069 mm")),
    Sketcher.Constraint("Distance", 2, Q("36.299979 mm")),
    Sketcher.Constraint("DistanceY", 0, 1, 0, 2, Q("5.524103 mm")),
    Sketcher.Constraint("DistanceY", -1, 1, 1, 2, Q("40.574929 mm")),
    Sketcher.Constraint("DistanceY", -1, 1, 2, 2, Q("24.974668 mm")),
])
pad3 = body.newObject("PartDesign::Pad", "Pad002")
pad3.Profile = sketch8
pad3.Length = 56
pad3.Reversed = True

# Sketch on an angled plane
sketch9 = body.newObject("Sketcher::SketchObject", "Sketch008")
sketch9.Placement = App.Placement(App.Vector(-19.527563, 29.041651, 0), App.Rotation(App.Vector(0.829848446, 0.55798885, 0), App.Vector(0, 0, 1), App.Vector(0.55798885, -0.829848446, 0), "ZXY"))
sketch9.addGeometry([
    Part.LineSegment(App.Vector(20.66937, -50, 0), App.Vector(20.66937, -8.960219, 0)),
    Part.BSplineCurve([App.Vector(20.66937, -8.960219, 0), App.Vector(3.547051, -13.487974, 0), App.Vector(-12.619699, -20, 0)], [3, 3], [1.879279318, 2.02269118], False, 2, [1, 0.997430231, 1], False),
    Part.LineSegment(App.Vector(-12.619699, -20, 0), App.Vector(-12.619699, -50, 0)),
    Part.LineSegment(App.Vector(-12.619699, -50, 0), App.Vector(20.66937, -50, 0)),
], False)
sketch9.addConstraint([
    Sketcher.Constraint("Block", 1),
    Sketcher.Constraint("Coincident", 0, 2, 1, 1),
    Sketcher.Constraint("Coincident", 1, 2, 2, 1),
    Sketcher.Constraint("Coincident", 2, 2, 3, 1),
    Sketcher.Constraint("Coincident", 3, 2, 0, 1),
    Sketcher.Constraint("Vertical", 0),
    Sketcher.Constraint("Vertical", 2),
    Sketcher.Constraint("Horizontal", 3),
    Sketcher.Constraint("DistanceY", 2, 2, 2, 1, Q("30 mm")),
])
pocket6 = body.newObject("PartDesign::Pocket", "Pocket005")
pocket6.Profile = sketch9
pocket6.Length = 56

# Sketch on an angled plane
sketch10 = body.newObject("Sketcher::SketchObject", "Sketch009")
sketch10.Placement = App.Placement(App.Vector(-10.472437, -7.041651, 0), App.Rotation(App.Vector(0, 0, -1), App.Vector(-0.55798885, 0.829848446, 0), App.Vector(0.829848446, 0.55798885, 0), "ZXY"))
sketch10.addGeometry([
    Part.LineSegment(App.Vector(20, 40, 0), App.Vector(20, 35, 0)),
    Part.LineSegment(App.Vector(20, 35, 0), App.Vector(50, 35, 0)),
    Part.LineSegment(App.Vector(50, 35, 0), App.Vector(50, 40, 0)),
    Part.LineSegment(App.Vector(50, 40, 0), App.Vector(20, 40, 0)),
], False)
sketch10.addConstraint([
    Sketcher.Constraint("Coincident", 0, 2, 1, 1),
    Sketcher.Constraint("Coincident", 1, 2, 2, 1),
    Sketcher.Constraint("Coincident", 2, 2, 3, 1),
    Sketcher.Constraint("Coincident", 3, 2, 0, 1),
    Sketcher.Constraint("Vertical", 0),
    Sketcher.Constraint("Horizontal", 1),
    Sketcher.Constraint("Vertical", 2),
    Sketcher.Constraint("Horizontal", 3),
    Sketcher.Constraint("DistanceX", 1, 1, 1, 2, Q("30 mm")),
    Sketcher.Constraint("DistanceX", -1, 1, 0, 2, Q("20 mm")),
    Sketcher.Constraint("DistanceY", 0, 2, 0, 1, Q("4.954017 mm")),
    Sketcher.Constraint("DistanceY", -1, 1, 0, 2, Q("34.996331 mm")),
])
pocket7 = body.newObject("PartDesign::Pocket", "Pocket006")
pocket7.Profile = sketch10
pocket7.Length = 56

# Sketch on an angled plane
sketch11 = body.newObject("Sketcher::SketchObject", "Sketch010")
sketch11.Placement = App.Placement(App.Vector(-22.291849, 33.152735, 0), App.Rotation(App.Vector(0.829848446, 0.55798885, 0), App.Vector(0, 0, 1), App.Vector(0.55798885, -0.829848446, 0), "ZXY"))
sketch11.addGeometry([
    Part.LineSegment(App.Vector(-15.3, -20, 0), App.Vector(-15.3, -50, 0)),
    Part.LineSegment(App.Vector(-15.3, -50, 0), App.Vector(-12.6, -50, 0)),
    Part.LineSegment(App.Vector(-12.6, -50, 0), App.Vector(-12.6, -20, 0)),
    Part.LineSegment(App.Vector(-12.6, -20, 0), App.Vector(-15.3, -20, 0)),
], False)
sketch11.addConstraint([
    Sketcher.Constraint("Coincident", 0, 2, 1, 1),
    Sketcher.Constraint("Coincident", 1, 2, 2, 1),
    Sketcher.Constraint("Coincident", 2, 2, 3, 1),
    Sketcher.Constraint("Coincident", 3, 2, 0, 1),
    Sketcher.Constraint("Vertical", 0),
    Sketcher.Constraint("Horizontal", 1),
    Sketcher.Constraint("Vertical", 2),
    Sketcher.Constraint("Horizontal", 3),
    Sketcher.Constraint("DistanceY", 0, 2, 0, 1, Q("30 mm")),
    Sketcher.Constraint("DistanceY", 0, 2, -1, 1, Q("50 mm")),
    Sketcher.Constraint("DistanceX", 1, 2, -1, 1, Q("12.619699 mm")),
    Sketcher.Constraint("DistanceX", 1, 1, 1, 2, Q("2.729994 mm")),
])
pocket8 = body.newObject("PartDesign::Pocket", "Pocket007")
pocket8.Profile = sketch11
pocket8.Length = 56

# Sketch on an angled plane
sketch12 = body.newObject("Sketcher::SketchObject", "Sketch011")
sketch12.Placement = App.Placement(App.Vector(-19.527563, 29.041651, 0), App.Rotation(App.Vector(0.829848446, 0.55798885, 0), App.Vector(0, 0, -1), App.Vector(-0.55798885, 0.829848446, 0), "ZXY"))
sketch12.addGeometry([
    Part.LineSegment(App.Vector(-16.8, 50, 0), App.Vector(-16.8, 20, 0)),
    Part.LineSegment(App.Vector(-16.8, 20, 0), App.Vector(-12.6, 20, 0)),
    Part.LineSegment(App.Vector(-12.6, 20, 0), App.Vector(-12.6, 50, 0)),
    Part.LineSegment(App.Vector(-12.6, 50, 0), App.Vector(-16.8, 50, 0)),
], False)
sketch12.addConstraint([
    Sketcher.Constraint("Coincident", 0, 2, 1, 1),
    Sketcher.Constraint("Coincident", 1, 2, 2, 1),
    Sketcher.Constraint("Coincident", 2, 2, 3, 1),
    Sketcher.Constraint("Coincident", 3, 2, 0, 1),
    Sketcher.Constraint("Vertical", 0),
    Sketcher.Constraint("Horizontal", 1),
    Sketcher.Constraint("Vertical", 2),
    Sketcher.Constraint("Horizontal", 3),
    Sketcher.Constraint("DistanceY", 0, 2, 0, 1, Q("30 mm")),
    Sketcher.Constraint("DistanceY", -1, 1, 0, 2, Q("20 mm")),
    Sketcher.Constraint("DistanceX", 1, 1, 1, 2, Q("4.187219 mm")),
    Sketcher.Constraint("DistanceX", 1, 2, -1, 1, Q("12.619699 mm")),
])
pocket9 = body.newObject("PartDesign::Pocket", "Pocket008")
pocket9.Profile = sketch12
pocket9.Length = 56

# Sketch on XY plane
sketch13 = body.newObject("Sketcher::SketchObject", "Sketch012")
sketch13.AttachmentSupport = (doc.getObject("XY_Plane"), [""])
sketch13.MapMode = "FlatFace"
sketch13.AttachmentOffset = App.Placement(App.Vector(0, 0, -20), App.Rotation())
sketch13.addGeometry(Part.Circle(App.Vector(-34, 21, 0), App.Vector(0, 0, 1), 8), False)
sketch13.addConstraint([
    Sketcher.Constraint("Diameter", 0, Q("15.936222 mm")),
    Sketcher.Constraint("DistanceX", 0, 3, -1, 1, Q("34.361613 mm")),
    Sketcher.Constraint("DistanceY", -1, 1, 0, 3, Q("20.650996 mm")),
])
pocket10 = body.newObject("PartDesign::Pocket", "Pocket009")
pocket10.Profile = sketch13
pocket10.Length = 56
doc.recompute()

fillet = body.newObject("PartDesign::Fillet", "Fillet")
fillet.Base = (pocket10, edges_at(pocket10, [(-35.152, 24.975, -7)]))
fillet.Radius = 3
doc.recompute()

fillet2 = body.newObject("PartDesign::Fillet", "Fillet001")
fillet2.Base = (fillet, edges_at(fillet, [(-32.468, 16.476, -7)]))
fillet2.Radius = 1

# Sketch on XZ plane
sketch14 = body.newObject("Sketcher::SketchObject", "Sketch013")
sketch14.AttachmentSupport = (doc.getObject("XZ_Plane"), [""])
sketch14.MapMode = "FlatFace"
sketch14.AttachmentOffset = App.Placement(App.Vector(0, 0, -29), App.Rotation())
sketch14.addGeometry(Part.Circle(App.Vector(-15, -3, 0), App.Vector(0, 0, 1), 5), False)
sketch14.addConstraint([
    Sketcher.Constraint("Diameter", 0, Q("10 mm")),
    Sketcher.Constraint("DistanceX", 0, 3, -1, 1, Q("15 mm")),
    Sketcher.Constraint("DistanceY", 0, 3, -1, 1, Q("3 mm")),
])
pocket11 = body.newObject("PartDesign::Pocket", "Pocket010")
pocket11.Profile = sketch14
pocket11.Length = 56

# Sketch on XY plane
sketch15 = body.newObject("Sketcher::SketchObject", "Sketch014")
sketch15.AttachmentSupport = (doc.getObject("XY_Plane"), [""])
sketch15.MapMode = "FlatFace"
sketch15.AttachmentOffset = App.Placement(App.Vector(0, 0, 6), App.Rotation())
sketch15.addGeometry([
    Part.LineSegment(App.Vector(10, 22, 0), App.Vector(10, 16, 0)),  # 0
    Part.LineSegment(App.Vector(10, 16, 0), App.Vector(14, 10, 0)),  # 1
    Part.LineSegment(App.Vector(14, 10, 0), App.Vector(40, 7, 0)),  # 2
    Part.LineSegment(App.Vector(40, 7, 0), App.Vector(39, 31, 0)),  # 3
    Part.ArcOfCircle(Part.Circle(App.Vector(33, 41, 0), App.Vector(0, 0, 1), 12), math.radians(-119), math.radians(-60)),  # 4
    Part.ArcOfCircle(Part.Circle(App.Vector(21, 22, 0), App.Vector(0, 0, 1), 11), math.radians(52), math.radians(180)),  # 5
], False)
sketch15.addConstraint([
    Sketcher.Constraint("Coincident", 0, 2, 1, 1),
    Sketcher.Constraint("Coincident", 1, 2, 2, 1),
    Sketcher.Constraint("Coincident", 2, 2, 3, 1),
    Sketcher.Constraint("Coincident", 3, 2, 4, 2),
    Sketcher.Constraint("Coincident", 4, 1, 5, 1),
    Sketcher.Constraint("Coincident", 5, 2, 0, 1),
    Sketcher.Constraint("Radius", 5, Q("11 mm")),
    Sketcher.Constraint("DistanceX", -1, 1, 5, 3, Q("21 mm")),
    Sketcher.Constraint("DistanceY", -1, 1, 5, 3, Q("22.2 mm")),
    Sketcher.Constraint("DistanceY", -1, 1, 5, 2, Q("22.2 mm")),
    Sketcher.Constraint("DistanceX", -1, 1, 0, 2, Q("9.75 mm")),
    Sketcher.Constraint("Radius", 4, Q("11.559068 mm")),
    Sketcher.Constraint("DistanceY", -1, 1, 4, 3, Q("41.052198 mm")),
    Sketcher.Constraint("DistanceY", -1, 1, 1, 2, Q("9.675701 mm")),
    Sketcher.Constraint("Distance", 0, Q("5.895779 mm")),
    Sketcher.Constraint("Distance", 1, Q("8.15797 mm")),
    Sketcher.Constraint("DistanceY", -1, 1, 4, 1, Q("30.90686 mm")),
    Sketcher.Constraint("DistanceY", 2, 2, 1, 2, Q("2.740108 mm")),
    Sketcher.Constraint("DistanceY", 3, 2, 4, 3, Q("10.009771 mm")),
    Sketcher.Constraint("DistanceX", 3, 2, 2, 2, Q("1.01431 mm")),
])
pocket12 = body.newObject("PartDesign::Pocket", "Pocket011")
pocket12.Profile = sketch15
pocket12.Type = "ThroughAll"

doc.recompute()
